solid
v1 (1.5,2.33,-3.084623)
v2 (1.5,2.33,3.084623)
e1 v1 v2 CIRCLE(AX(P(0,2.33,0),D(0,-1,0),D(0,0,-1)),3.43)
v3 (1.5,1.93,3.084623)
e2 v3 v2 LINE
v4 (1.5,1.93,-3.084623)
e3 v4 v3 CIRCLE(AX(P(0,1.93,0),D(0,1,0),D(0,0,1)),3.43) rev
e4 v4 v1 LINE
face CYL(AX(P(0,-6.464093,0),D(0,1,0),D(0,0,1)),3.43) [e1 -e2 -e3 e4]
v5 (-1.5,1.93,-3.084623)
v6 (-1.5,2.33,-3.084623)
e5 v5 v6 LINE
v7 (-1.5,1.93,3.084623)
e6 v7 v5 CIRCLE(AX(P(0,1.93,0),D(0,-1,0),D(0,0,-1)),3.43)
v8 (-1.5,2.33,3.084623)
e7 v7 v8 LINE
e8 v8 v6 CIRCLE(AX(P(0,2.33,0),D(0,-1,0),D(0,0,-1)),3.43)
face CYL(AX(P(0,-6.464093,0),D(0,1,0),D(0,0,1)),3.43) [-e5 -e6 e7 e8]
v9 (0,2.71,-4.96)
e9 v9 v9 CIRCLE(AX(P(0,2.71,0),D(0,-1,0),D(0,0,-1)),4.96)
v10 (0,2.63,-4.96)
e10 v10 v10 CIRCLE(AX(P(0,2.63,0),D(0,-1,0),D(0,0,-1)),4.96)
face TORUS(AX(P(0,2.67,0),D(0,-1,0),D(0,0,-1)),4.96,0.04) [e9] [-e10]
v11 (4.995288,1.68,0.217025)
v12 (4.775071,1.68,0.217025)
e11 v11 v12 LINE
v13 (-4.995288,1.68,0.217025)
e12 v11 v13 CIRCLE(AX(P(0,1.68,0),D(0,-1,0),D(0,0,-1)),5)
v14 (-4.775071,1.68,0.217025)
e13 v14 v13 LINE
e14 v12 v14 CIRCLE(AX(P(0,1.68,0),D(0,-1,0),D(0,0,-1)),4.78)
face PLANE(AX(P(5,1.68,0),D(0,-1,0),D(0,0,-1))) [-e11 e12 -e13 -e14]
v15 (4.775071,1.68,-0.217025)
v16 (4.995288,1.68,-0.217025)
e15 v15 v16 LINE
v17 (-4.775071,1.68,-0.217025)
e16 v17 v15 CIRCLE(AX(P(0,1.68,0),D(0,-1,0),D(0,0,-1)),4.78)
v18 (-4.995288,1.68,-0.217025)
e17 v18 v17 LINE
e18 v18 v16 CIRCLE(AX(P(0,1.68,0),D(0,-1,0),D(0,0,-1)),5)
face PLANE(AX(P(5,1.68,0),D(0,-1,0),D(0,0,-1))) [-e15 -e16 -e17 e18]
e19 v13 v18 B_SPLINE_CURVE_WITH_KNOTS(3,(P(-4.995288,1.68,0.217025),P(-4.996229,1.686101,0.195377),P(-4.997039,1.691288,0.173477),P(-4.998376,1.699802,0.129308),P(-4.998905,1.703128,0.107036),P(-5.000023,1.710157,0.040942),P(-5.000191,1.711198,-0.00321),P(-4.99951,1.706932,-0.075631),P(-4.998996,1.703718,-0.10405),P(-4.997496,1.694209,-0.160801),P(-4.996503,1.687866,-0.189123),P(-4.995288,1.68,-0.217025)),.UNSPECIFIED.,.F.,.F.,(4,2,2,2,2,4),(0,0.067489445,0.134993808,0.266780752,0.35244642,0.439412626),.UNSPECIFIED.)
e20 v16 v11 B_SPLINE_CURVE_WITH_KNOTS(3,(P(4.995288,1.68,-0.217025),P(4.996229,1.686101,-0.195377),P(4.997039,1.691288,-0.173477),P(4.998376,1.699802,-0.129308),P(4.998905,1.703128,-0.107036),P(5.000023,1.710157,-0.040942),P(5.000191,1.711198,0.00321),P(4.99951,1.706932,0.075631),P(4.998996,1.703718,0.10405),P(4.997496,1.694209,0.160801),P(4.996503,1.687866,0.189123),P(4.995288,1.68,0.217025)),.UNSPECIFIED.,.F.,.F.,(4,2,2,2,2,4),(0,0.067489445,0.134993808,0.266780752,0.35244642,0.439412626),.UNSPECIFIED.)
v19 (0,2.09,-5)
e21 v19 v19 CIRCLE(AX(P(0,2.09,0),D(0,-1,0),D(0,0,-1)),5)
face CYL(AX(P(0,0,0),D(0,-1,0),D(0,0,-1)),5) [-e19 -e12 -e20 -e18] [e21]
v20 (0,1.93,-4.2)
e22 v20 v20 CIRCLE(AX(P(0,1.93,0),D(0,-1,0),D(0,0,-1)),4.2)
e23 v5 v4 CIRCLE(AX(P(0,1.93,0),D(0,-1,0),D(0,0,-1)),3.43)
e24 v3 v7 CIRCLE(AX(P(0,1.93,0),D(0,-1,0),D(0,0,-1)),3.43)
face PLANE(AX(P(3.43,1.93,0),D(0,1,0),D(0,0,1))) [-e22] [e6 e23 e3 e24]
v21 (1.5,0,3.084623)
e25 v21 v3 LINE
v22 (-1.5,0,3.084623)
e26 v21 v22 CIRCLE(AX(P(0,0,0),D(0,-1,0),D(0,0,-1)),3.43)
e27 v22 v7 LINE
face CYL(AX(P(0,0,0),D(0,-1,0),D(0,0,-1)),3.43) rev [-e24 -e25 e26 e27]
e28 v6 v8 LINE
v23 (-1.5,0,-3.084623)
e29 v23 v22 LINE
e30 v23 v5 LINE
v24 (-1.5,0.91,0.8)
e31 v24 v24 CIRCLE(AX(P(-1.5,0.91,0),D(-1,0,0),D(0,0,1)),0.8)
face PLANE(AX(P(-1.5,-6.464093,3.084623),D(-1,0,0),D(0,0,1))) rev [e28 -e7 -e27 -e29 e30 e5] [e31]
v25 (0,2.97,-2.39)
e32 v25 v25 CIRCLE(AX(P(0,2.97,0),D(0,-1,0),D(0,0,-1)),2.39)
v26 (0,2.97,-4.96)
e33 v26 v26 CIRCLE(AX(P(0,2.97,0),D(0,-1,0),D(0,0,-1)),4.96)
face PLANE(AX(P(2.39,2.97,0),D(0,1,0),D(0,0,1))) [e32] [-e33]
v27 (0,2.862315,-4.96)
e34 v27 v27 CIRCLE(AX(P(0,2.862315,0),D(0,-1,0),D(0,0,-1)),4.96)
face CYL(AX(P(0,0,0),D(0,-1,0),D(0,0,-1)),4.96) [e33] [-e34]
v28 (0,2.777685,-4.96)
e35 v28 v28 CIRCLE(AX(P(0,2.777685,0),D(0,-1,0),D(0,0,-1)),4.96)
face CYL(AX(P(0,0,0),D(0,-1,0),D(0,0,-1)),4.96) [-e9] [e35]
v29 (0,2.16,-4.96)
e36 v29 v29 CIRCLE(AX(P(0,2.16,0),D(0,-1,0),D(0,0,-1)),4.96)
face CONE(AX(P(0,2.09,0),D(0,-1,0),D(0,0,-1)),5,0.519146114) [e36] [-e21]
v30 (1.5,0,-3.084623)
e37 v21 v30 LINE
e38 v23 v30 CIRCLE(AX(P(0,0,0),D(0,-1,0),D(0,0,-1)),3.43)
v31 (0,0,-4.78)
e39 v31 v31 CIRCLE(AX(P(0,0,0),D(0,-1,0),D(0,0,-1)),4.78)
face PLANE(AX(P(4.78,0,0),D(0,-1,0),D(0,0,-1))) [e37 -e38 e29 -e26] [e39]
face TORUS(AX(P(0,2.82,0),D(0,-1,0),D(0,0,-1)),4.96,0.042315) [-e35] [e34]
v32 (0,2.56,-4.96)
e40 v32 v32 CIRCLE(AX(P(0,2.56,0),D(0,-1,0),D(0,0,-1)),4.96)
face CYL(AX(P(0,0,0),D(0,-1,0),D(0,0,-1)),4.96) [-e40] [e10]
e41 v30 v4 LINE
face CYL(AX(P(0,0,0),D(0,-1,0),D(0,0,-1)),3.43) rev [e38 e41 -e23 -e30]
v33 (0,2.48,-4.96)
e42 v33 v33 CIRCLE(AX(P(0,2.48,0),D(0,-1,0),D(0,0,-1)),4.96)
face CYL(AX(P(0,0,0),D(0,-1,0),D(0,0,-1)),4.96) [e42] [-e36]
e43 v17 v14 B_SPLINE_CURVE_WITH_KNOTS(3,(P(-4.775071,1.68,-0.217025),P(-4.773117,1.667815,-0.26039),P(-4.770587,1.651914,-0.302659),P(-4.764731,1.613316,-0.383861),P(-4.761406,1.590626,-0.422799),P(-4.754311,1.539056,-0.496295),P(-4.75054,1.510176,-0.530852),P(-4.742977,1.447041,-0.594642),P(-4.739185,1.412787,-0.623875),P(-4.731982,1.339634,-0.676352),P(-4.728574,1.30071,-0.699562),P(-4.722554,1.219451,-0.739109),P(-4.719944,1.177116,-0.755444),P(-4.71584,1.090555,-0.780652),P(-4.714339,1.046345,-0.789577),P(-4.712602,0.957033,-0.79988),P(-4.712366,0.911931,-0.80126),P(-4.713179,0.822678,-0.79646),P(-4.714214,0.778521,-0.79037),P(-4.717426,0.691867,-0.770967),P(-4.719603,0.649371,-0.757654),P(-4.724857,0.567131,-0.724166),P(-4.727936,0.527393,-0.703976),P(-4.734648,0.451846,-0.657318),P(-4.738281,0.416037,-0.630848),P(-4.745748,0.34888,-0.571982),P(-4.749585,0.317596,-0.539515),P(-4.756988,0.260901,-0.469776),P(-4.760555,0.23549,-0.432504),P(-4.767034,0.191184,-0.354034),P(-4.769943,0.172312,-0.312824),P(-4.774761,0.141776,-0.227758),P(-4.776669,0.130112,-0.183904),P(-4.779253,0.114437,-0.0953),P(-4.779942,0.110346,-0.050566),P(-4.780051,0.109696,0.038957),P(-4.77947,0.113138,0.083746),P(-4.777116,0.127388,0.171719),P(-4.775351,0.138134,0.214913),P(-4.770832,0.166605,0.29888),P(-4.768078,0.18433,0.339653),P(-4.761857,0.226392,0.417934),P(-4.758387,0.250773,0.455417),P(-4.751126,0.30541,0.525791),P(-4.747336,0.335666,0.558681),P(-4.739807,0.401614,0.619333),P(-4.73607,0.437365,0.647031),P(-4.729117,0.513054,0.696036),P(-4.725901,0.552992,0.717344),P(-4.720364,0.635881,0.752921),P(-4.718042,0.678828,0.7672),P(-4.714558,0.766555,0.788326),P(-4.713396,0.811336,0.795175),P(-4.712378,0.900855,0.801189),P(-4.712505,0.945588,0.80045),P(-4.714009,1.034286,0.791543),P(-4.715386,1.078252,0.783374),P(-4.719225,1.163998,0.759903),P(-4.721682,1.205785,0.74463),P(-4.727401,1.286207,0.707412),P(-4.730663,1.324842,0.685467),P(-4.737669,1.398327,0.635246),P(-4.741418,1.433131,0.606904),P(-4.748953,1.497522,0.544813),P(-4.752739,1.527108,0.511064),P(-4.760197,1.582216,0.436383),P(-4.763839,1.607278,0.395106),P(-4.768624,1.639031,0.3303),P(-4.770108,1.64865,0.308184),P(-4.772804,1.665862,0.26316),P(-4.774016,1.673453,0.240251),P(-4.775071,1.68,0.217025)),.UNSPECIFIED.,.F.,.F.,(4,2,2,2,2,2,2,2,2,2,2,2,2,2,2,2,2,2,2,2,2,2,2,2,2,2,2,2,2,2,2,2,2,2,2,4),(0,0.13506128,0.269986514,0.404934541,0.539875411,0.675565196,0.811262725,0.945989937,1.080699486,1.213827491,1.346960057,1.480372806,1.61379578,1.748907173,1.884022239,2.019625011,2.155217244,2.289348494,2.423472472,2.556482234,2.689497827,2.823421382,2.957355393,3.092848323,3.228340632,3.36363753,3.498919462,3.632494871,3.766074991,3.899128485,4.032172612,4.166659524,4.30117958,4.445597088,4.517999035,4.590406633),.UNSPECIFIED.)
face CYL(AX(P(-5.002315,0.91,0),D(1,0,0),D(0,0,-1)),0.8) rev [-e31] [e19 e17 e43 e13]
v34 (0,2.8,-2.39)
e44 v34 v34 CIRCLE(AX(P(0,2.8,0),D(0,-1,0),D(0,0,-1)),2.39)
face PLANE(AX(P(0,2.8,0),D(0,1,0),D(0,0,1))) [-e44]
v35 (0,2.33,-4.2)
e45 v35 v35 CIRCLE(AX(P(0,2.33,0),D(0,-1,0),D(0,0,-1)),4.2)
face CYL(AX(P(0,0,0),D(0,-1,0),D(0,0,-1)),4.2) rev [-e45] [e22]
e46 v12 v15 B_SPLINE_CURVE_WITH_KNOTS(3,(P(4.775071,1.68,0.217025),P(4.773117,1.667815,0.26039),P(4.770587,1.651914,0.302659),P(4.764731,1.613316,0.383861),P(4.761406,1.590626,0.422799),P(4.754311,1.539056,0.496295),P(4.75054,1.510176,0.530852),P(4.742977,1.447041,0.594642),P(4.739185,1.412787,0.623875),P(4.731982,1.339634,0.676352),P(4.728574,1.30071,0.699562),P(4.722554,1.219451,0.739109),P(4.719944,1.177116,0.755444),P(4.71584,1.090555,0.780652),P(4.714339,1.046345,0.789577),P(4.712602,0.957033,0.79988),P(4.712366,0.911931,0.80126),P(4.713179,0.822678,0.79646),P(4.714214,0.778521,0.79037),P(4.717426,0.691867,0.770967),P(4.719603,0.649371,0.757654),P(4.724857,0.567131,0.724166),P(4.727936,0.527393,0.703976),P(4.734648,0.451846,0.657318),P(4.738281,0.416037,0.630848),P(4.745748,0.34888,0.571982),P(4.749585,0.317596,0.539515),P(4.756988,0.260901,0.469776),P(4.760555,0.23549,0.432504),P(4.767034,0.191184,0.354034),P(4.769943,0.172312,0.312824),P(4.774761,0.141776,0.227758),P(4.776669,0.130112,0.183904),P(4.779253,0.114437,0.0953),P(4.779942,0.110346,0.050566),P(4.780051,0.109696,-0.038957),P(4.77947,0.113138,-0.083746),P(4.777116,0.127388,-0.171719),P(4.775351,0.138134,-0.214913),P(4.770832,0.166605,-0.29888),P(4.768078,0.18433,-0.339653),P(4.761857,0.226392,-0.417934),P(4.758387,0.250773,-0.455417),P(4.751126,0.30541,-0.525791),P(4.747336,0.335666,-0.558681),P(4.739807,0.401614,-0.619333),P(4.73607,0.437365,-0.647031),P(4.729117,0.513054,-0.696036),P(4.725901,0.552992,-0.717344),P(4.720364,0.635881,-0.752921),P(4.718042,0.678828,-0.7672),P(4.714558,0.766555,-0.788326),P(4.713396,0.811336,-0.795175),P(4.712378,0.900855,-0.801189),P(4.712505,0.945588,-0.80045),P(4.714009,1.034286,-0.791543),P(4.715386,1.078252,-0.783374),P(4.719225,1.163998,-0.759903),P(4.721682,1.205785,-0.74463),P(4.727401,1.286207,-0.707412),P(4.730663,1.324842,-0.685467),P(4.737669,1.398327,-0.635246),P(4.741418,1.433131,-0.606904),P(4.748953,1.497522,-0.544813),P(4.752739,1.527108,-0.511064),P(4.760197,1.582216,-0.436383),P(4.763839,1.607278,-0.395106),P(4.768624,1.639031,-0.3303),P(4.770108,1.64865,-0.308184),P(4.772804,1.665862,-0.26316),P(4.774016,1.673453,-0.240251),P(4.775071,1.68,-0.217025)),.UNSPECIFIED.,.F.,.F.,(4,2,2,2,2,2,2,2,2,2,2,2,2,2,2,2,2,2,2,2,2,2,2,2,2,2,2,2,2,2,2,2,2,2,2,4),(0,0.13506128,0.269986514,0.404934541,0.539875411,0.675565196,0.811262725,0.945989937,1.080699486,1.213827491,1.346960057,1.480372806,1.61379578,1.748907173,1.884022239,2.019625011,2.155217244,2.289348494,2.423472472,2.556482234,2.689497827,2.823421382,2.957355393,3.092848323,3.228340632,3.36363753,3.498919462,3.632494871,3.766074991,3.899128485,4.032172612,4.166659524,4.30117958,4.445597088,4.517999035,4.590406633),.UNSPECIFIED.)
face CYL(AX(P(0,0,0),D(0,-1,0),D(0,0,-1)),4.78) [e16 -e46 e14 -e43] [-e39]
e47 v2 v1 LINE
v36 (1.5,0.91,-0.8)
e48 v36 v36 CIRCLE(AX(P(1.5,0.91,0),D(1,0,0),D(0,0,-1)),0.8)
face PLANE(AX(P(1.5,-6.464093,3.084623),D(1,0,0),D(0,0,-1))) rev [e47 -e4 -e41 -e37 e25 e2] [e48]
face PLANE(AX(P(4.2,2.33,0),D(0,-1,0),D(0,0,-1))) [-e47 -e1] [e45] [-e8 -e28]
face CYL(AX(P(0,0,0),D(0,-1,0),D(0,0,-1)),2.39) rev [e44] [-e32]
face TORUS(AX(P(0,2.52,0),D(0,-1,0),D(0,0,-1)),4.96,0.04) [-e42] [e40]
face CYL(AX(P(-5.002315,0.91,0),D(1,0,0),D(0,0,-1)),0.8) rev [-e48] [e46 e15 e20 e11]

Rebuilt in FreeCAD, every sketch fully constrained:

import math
import FreeCAD as App
import Part
import Sketcher
Q = App.Units.Quantity

doc = App.newDocument("Part")
params = doc.addObject("Spreadsheet::Sheet", "Params")
for row, (alias, value) in enumerate([
    ("sketch1_radius", "0.04 mm"),
    ("sketch1_width", "4.2 mm"),
    ("sketch1_height", "0.4 mm"),
    ("sketch1_width2", "1.35 mm"),
    ("sketch1_width3", "0.22 mm"),
    ("revolution_angle", "360 deg"),
    ("sketch2_radius", "3.43 mm"),
    ("pad1_length", "2.33 mm"),
    ("sketch3_diameter", "1.6 mm"),
], start=1):
    params.set(f"A{row}", alias)
    params.set(f"B{row}", "=" + value)
    params.setAlias(f"B{row}", alias)

body = doc.addObject("PartDesign::Body", "Body")

sketch1 = doc.addObject("Sketcher::SketchObject", "Sketch")
body.addObject(sketch1)
sketch1.AttachmentSupport = (doc.XY_Plane, [""])
sketch1.MapMode = "FlatFace"
sketch1.addGeometry(Part.LineSegment(App.Vector(3.43, 0, 0), App.Vector(4.78, 0, 0)), False)
sketch1.addGeometry(Part.LineSegment(App.Vector(4.78, 0, 0), App.Vector(4.78, 1.68, 0)), False)
sketch1.addGeometry(Part.LineSegment(App.Vector(4.78, 1.68, 0), App.Vector(5, 1.68, 0)), False)
sketch1.addGeometry(Part.LineSegment(App.Vector(5, 1.68, 0), App.Vector(5, 2.09, 0)), False)
sketch1.addGeometry(Part.LineSegment(App.Vector(5, 2.09, 0), App.Vector(4.96, 2.16, 0)), False)
sketch1.addGeometry(Part.LineSegment(App.Vector(4.96, 2.16, 0), App.Vector(4.96, 2.48, 0)), False)
sketch1.addGeometry(Part.ArcOfCircle(Part.Circle(App.Vector(4.96, 2.52, 0), App.Vector(0, 0, 1), 0.04), math.radians(-90), math.radians(90)), False)
sketch1.addGeometry(Part.LineSegment(App.Vector(4.96, 2.56, 0), App.Vector(4.96, 2.63, 0)), False)
sketch1.addGeometry(Part.ArcOfCircle(Part.Circle(App.Vector(4.96, 2.67, 0), App.Vector(0, 0, 1), 0.04), math.radians(-90), math.radians(90)), False)
sketch1.addGeometry(Part.LineSegment(App.Vector(4.96, 2.71, 0), App.Vector(4.96, 2.777685, 0)), False)
sketch1.addGeometry(Part.ArcOfCircle(Part.Circle(App.Vector(4.96, 2.82, 0), App.Vector(0, 0, 1), 0.042315), math.radians(-90), math.radians(90)), False)
sketch1.addGeometry(Part.LineSegment(App.Vector(4.96, 2.862315, 0), App.Vector(4.96, 2.97, 0)), False)
sketch1.addGeometry(Part.LineSegment(App.Vector(4.96, 2.97, 0), App.Vector(2.39, 2.97, 0)), False)
sketch1.addGeometry(Part.LineSegment(App.Vector(2.39, 2.97, 0), App.Vector(2.39, 2.8, 0)), False)
sketch1.addGeometry(Part.LineSegment(App.Vector(2.39, 2.8, 0), App.Vector(0, 2.8, 0)), False)
sketch1.addGeometry(Part.LineSegment(App.Vector(0, 2.8, 0), App.Vector(0, 2.33, 0)), False)
sketch1.addGeometry(Part.LineSegment(App.Vector(0, 2.33, 0), App.Vector(4.2, 2.33, 0)), False)
sketch1.addGeometry(Part.LineSegment(App.Vector(4.2, 2.33, 0), App.Vector(4.2, 1.93, 0)), False)
sketch1.addGeometry(Part.LineSegment(App.Vector(4.2, 1.93, 0), App.Vector(3.43, 1.93, 0)), False)
sketch1.addGeometry(Part.LineSegment(App.Vector(3.43, 1.93, 0), App.Vector(3.43, 0, 0)), False)
sketch1.addConstraint(Sketcher.Constraint("Coincident", 0, 2, 1, 1))
sketch1.addConstraint(Sketcher.Constraint("Coincident", 1, 2, 2, 1))
sketch1.addConstraint(Sketcher.Constraint("Coincident", 2, 2, 3, 1))
sketch1.addConstraint(Sketcher.Constraint("Coincident", 3, 2, 4, 1))
sketch1.addConstraint(Sketcher.Constraint("Coincident", 4, 2, 5, 1))
sketch1.addConstraint(Sketcher.Constraint("Coincident", 5, 2, 6, 1))
sketch1.addConstraint(Sketcher.Constraint("Coincident", 6, 2, 7, 1))
sketch1.addConstraint(Sketcher.Constraint("Coincident", 7, 2, 8, 1))
sketch1.addConstraint(Sketcher.Constraint("Coincident", 8, 2, 9, 1))
sketch1.addConstraint(Sketcher.Constraint("Coincident", 9, 2, 10, 1))
sketch1.addConstraint(Sketcher.Constraint("Coincident", 10, 2, 11, 1))
sketch1.addConstraint(Sketcher.Constraint("Coincident", 11, 2, 12, 1))
sketch1.addConstraint(Sketcher.Constraint("Coincident", 12, 2, 13, 1))
sketch1.addConstraint(Sketcher.Constraint("Coincident", 13, 2, 14, 1))
sketch1.addConstraint(Sketcher.Constraint("Coincident", 14, 2, 15, 1))
sketch1.addConstraint(Sketcher.Constraint("Coincident", 15, 2, 16, 1))
sketch1.addConstraint(Sketcher.Constraint("Coincident", 16, 2, 17, 1))
sketch1.addConstraint(Sketcher.Constraint("Coincident", 17, 2, 18, 1))
sketch1.addConstraint(Sketcher.Constraint("Coincident", 18, 2, 19, 1))
sketch1.addConstraint(Sketcher.Constraint("Coincident", 19, 2, 0, 1))
sketch1.addConstraint(Sketcher.Constraint("Horizontal", 0))
sketch1.addConstraint(Sketcher.Constraint("Vertical", 1))
sketch1.addConstraint(Sketcher.Constraint("Horizontal", 2))
sketch1.addConstraint(Sketcher.Constraint("Vertical", 3))
sketch1.addConstraint(Sketcher.Constraint("Vertical", 5))
sketch1.addConstraint(Sketcher.Constraint("Vertical", 7))
sketch1.addConstraint(Sketcher.Constraint("Vertical", 9))
sketch1.addConstraint(Sketcher.Constraint("Vertical", 11))
sketch1.addConstraint(Sketcher.Constraint("Horizontal", 12))
sketch1.addConstraint(Sketcher.Constraint("Vertical", 13))
sketch1.addConstraint(Sketcher.Constraint("Horizontal", 14))
sketch1.addConstraint(Sketcher.Constraint("Vertical", 15))
sketch1.addConstraint(Sketcher.Constraint("Horizontal", 16))
sketch1.addConstraint(Sketcher.Constraint("Vertical", 17))
sketch1.addConstraint(Sketcher.Constraint("Horizontal", 18))
sketch1.addConstraint(Sketcher.Constraint("Vertical", 19))
sketch1.addConstraint(Sketcher.Constraint("Equal", 6, 8))
sketch1.addConstraint(Sketcher.Constraint("PointOnObject", 0, 2, -1))
sketch1.addConstraint(Sketcher.Constraint("PointOnObject", 14, 2, -2))
sketch1.addConstraint(Sketcher.Constraint("Vertical", 6, 3, 8, 3))
sketch1.addConstraint(Sketcher.Constraint("Vertical", 8, 3, 10, 3))
sketch1.addConstraint(Sketcher.Constraint("Vertical", 10, 3, 4, 2))
sketch1.addConstraint(Sketcher.Constraint("Vertical", 5, 2, 6, 2))
sketch1.addConstraint(Sketcher.Constraint("Vertical", 7, 2, 8, 2))
sketch1.addConstraint(Sketcher.Constraint("Vertical", 9, 2, 10, 2))
sketch1.addConstraint(Sketcher.Constraint("Radius", 6, Q("0.04 mm")))
sketch1.addConstraint(Sketcher.Constraint("DistanceX", 16, 1, 16, 2, Q("4.2 mm")))
sketch1.addConstraint(Sketcher.Constraint("DistanceY", 17, 2, 17, 1, Q("0.4 mm")))
sketch1.addConstraint(Sketcher.Constraint("DistanceX", -1, 1, 2, 2, Q("5 mm")))
sketch1.addConstraint(Sketcher.Constraint("DistanceX", 0, 1, 0, 2, Q("1.35 mm")))
sketch1.addConstraint(Sketcher.Constraint("DistanceX", 2, 1, 2, 2, Q("0.22 mm")))
sketch1.addConstraint(Sketcher.Constraint("DistanceX", 12, 2, 12, 1, Q("2.57 mm")))
sketch1.addConstraint(Sketcher.Constraint("DistanceX", 14, 2, 14, 1, Q("2.39 mm")))
sketch1.addConstraint(Sketcher.Constraint("DistanceY", 1, 1, 1, 2, Q("1.68 mm")))
sketch1.addConstraint(Sketcher.Constraint("DistanceY", 3, 1, 3, 2, Q("0.41 mm")))
sketch1.addConstraint(Sketcher.Constraint("DistanceY", 5, 1, 5, 2, Q("0.32 mm")))
sketch1.addConstraint(Sketcher.Constraint("DistanceY", 7, 1, 7, 2, Q("0.07 mm")))
sketch1.addConstraint(Sketcher.Constraint("DistanceY", 13, 2, 13, 1, Q("0.17 mm")))
sketch1.addConstraint(Sketcher.Constraint("DistanceY", 15, 2, 15, 1, Q("0.47 mm")))
sketch1.addConstraint(Sketcher.Constraint("DistanceY", 19, 2, 19, 1, Q("1.93 mm")))
sketch1.addConstraint(Sketcher.Constraint("DistanceY", 6, 3, 10, 3, Q("0.3 mm")))
sketch1.addConstraint(Sketcher.Constraint("DistanceY", 8, 3, 11, 2, Q("0.3 mm")))
sketch1.addConstraint(Sketcher.Constraint("Radius", 10, Q("0.042315 mm")))
sketch1.setExpression("Constraints[45]", "Params.sketch1_radius")
sketch1.setExpression("Constraints[46]", "Params.sketch1_width")
sketch1.setExpression("Constraints[47]", "Params.sketch1_height")
sketch1.setExpression("Constraints[49]", "Params.sketch1_width2")
sketch1.setExpression("Constraints[50]", "Params.sketch1_width3")
revolution = doc.addObject("PartDesign::Revolution", "Revolution")
body.addObject(revolution)
revolution.Profile = sketch1
revolution.ReferenceAxis = (sketch1, ["V_Axis"])
revolution.setExpression("Angle", "Params.revolution_angle")

sketch2 = doc.addObject("Sketcher::SketchObject", "Sketch001")
body.addObject(sketch2)
sketch2.AttachmentSupport = (doc.XZ_Plane, [""])
sketch2.MapMode = "FlatFace"
sketch2.AttachmentOffset = App.Placement(App.Vector(0, 0, -2.33), App.Rotation())
sketch2.addGeometry(Part.LineSegment(App.Vector(-1.5, -3.084623, 0), App.Vector(-1.5, 3.084623, 0)), False)
sketch2.addGeometry(Part.ArcOfCircle(Part.Circle(App.Vector(0, 0, 0), App.Vector(0, 0, 1), 3.43), math.radians(115.93287), math.radians(244.06713)), False)
sketch2.addGeometry(Part.LineSegment(App.Vector(1.5, 3.084623, 0), App.Vector(1.5, -3.084623, 0)), False)
sketch2.addGeometry(Part.ArcOfCircle(Part.Circle(App.Vector(0, 0, 0), App.Vector(0, 0, 1), 3.43), math.radians(-64.06713), math.radians(64.06713)), False)
sketch2.addConstraint(Sketcher.Constraint("Coincident", 0, 1, 1, 2))
sketch2.addConstraint(Sketcher.Constraint("Coincident", 1, 1, 0, 2))
sketch2.addConstraint(Sketcher.Constraint("Coincident", 2, 1, 3, 2))
sketch2.addConstraint(Sketcher.Constraint("Coincident", 3, 1, 2, 2))
sketch2.addConstraint(Sketcher.Constraint("Vertical", 0))
sketch2.addConstraint(Sketcher.Constraint("Vertical", 2))
sketch2.addConstraint(Sketcher.Constraint("Coincident", 1, 3, -1, 1))
sketch2.addConstraint(Sketcher.Constraint("Coincident", 3, 3, -1, 1))
sketch2.addConstraint(Sketcher.Constraint("Equal", 1, 3))
sketch2.addConstraint(Sketcher.Constraint("Horizontal", 1, 1, 2, 1))
sketch2.addConstraint(Sketcher.Constraint("Radius", 1, Q("3.43 mm")))
sketch2.addConstraint(Sketcher.Constraint("DistanceX", 1, 1, 2, 1, Q("3 mm")))
sketch2.setExpression("Constraints[10]", "Params.sketch2_radius")
pad1 = doc.addObject("PartDesign::Pad", "Pad")
body.addObject(pad1)
pad1.Profile = sketch2
pad1.setExpression("Length", "Params.pad1_length")

sketch3 = doc.addObject("Sketcher::SketchObject", "Sketch002")
body.addObject(sketch3)
sketch3.AttachmentSupport = (doc.YZ_Plane, [""])
sketch3.MapMode = "FlatFace"
sketch3.addGeometry(Part.Circle(App.Vector(0.91, 0, 0), App.Vector(0, 0, 1), 0.8), False)
sketch3.addConstraint(Sketcher.Constraint("PointOnObject", 0, 3, -1))
sketch3.addConstraint(Sketcher.Constraint("Diameter", 0, Q("1.6 mm")))
sketch3.addConstraint(Sketcher.Constraint("DistanceX", -1, 1, 0, 3, Q("0.91 mm")))
sketch3.setExpression("Constraints[1]", "Params.sketch3_diameter")
pocket1 = doc.addObject("PartDesign::Pocket", "Pocket")
body.addObject(pocket1)
pocket1.Profile = sketch3
pocket1.Type = "ThroughAll"
pocket1.Midplane = True

doc.recompute()
